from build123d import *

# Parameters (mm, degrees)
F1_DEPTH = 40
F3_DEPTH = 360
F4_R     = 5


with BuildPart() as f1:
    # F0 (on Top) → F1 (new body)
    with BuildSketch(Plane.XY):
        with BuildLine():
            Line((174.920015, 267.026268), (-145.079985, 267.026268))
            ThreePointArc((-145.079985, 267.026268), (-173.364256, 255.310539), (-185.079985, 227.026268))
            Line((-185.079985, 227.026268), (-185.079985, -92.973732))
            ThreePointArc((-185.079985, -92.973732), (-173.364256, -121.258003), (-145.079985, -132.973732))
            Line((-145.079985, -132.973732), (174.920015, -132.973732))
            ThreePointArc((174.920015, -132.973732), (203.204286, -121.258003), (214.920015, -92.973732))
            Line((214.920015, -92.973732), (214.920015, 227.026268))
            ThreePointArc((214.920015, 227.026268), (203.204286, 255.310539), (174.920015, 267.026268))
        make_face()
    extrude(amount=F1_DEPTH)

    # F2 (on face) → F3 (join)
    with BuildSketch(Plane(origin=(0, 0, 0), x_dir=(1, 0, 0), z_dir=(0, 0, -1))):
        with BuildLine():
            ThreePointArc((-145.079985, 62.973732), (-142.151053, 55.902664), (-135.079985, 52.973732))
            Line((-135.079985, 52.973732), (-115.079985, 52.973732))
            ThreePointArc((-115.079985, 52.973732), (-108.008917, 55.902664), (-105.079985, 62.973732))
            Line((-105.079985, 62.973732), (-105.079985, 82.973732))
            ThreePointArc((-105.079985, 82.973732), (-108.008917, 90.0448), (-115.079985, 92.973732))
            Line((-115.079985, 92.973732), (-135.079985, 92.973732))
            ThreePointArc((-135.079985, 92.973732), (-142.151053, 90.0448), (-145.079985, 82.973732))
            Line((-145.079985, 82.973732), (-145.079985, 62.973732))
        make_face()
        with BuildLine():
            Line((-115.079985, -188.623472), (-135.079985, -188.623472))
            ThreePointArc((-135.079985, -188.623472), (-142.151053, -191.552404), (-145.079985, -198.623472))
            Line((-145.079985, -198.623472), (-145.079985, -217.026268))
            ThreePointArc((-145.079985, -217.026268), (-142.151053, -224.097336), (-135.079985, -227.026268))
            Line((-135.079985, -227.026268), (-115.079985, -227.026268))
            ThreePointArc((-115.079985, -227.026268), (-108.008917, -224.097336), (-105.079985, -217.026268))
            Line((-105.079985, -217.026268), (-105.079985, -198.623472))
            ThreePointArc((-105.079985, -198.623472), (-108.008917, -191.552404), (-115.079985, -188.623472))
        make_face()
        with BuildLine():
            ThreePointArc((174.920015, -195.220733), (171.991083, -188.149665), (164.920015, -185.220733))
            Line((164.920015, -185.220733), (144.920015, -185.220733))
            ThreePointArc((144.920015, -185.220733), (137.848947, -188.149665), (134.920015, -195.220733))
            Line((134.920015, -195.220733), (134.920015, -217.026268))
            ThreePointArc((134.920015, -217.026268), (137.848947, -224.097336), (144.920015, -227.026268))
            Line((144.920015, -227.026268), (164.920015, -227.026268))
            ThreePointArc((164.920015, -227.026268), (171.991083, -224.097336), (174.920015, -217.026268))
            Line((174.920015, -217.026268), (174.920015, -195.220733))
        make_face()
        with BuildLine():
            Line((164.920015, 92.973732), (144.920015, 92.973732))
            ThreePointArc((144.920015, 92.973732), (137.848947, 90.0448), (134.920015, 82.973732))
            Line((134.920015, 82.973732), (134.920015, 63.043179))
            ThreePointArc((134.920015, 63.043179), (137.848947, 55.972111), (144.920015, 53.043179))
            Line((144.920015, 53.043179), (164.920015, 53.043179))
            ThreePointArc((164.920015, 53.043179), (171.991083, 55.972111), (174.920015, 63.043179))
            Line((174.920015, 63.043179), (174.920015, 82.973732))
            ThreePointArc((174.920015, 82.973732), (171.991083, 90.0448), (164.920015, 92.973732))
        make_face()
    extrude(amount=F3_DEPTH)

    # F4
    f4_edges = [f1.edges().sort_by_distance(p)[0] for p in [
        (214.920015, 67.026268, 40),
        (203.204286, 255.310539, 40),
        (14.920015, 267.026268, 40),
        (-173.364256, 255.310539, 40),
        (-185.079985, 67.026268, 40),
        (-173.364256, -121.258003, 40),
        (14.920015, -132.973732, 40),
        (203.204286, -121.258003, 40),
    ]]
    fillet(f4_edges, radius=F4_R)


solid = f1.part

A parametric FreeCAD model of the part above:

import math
import FreeCAD as App
import Part
import Sketcher
from FreeCAD import Vector


def edges_at(feature, points):
    """Names of the edges that pass closest to the given points."""
    edges = feature.Shape.Edges
    near = lambda p: min(range(len(edges)), key=lambda i: edges[i].distToShape(Part.Vertex(*p))[0])
    return sorted({f"Edge{near(p) + 1}" for p in points})

doc = App.newDocument("Part")
body = doc.addObject("PartDesign::Body", "Body")

# Sketch on XY plane
sketch1 = body.newObject("Sketcher::SketchObject", "Sketch")
sketch1.AttachmentSupport = (doc.getObject("XY_Plane"), [""])
sketch1.MapMode = "FlatFace"
sketch1.addGeometry([
    Part.LineSegment(Vector(174.920015, 267.026268, 0), Vector(-145.079985, 267.026268, 0)),  # 0
    Part.ArcOfCircle(Part.Circle(Vector(-145.079984, 227.026267, 0), Vector(0, 0, 1), 40.000001), math.radians(90.000001), math.radians(179.999999)),  # 1
    Part.LineSegment(Vector(-185.079985, 227.026268, 0), Vector(-185.079985, -92.973732, 0)),  # 2
    Part.ArcOfCircle(Part.Circle(Vector(-145.079984, -92.973731, 0), Vector(0, 0, 1), 40.000001), math.radians(-179.999999), math.radians(-90.000001)),  # 3
    Part.LineSegment(Vector(-145.079985, -132.973732, 0), Vector(174.920015, -132.973732, 0)),  # 4
    Part.ArcOfCircle(Part.Circle(Vector(174.920014, -92.973731, 0), Vector(0, 0, 1), 40.000001), math.radians(-89.999999), math.radians(-0.000001)),  # 5
    Part.LineSegment(Vector(214.920015, -92.973732, 0), Vector(214.920015, 227.026268, 0)),  # 6
    Part.ArcOfCircle(Part.Circle(Vector(174.920014, 227.026267, 0), Vector(0, 0, 1), 40.000001), math.radians(0.000001), math.radians(89.999999)),  # 7
], False)
sketch1.addConstraint([
    Sketcher.Constraint("Tangent", 0, 2, 1, 1),
    Sketcher.Constraint("Tangent", 1, 2, 2, 1),
    Sketcher.Constraint("Tangent", 2, 2, 3, 1),
    Sketcher.Constraint("Tangent", 3, 2, 4, 1),
    Sketcher.Constraint("Tangent", 4, 2, 5, 1),
    Sketcher.Constraint("Tangent", 5, 2, 6, 1),
    Sketcher.Constraint("Tangent", 6, 2, 7, 1),
    Sketcher.Constraint("Tangent", 7, 2, 0, 1),
    Sketcher.Constraint("Horizontal", 0),
    Sketcher.Constraint("Vertical", 2),
    Sketcher.Constraint("Horizontal", 4),
    Sketcher.Constraint("Vertical", 6),
    Sketcher.Constraint("Equal", 1, 3),
    Sketcher.Constraint("Equal", 3, 5),
    Sketcher.Constraint("Equal", 5, 7),
    Sketcher.Constraint("Equal", 4, 2),
    Sketcher.Constraint("Radius", 1, 40.000001),
    Sketcher.Constraint("DistanceX", 0, 2, 0, 1, 320.0),
    Sketcher.Constraint("DistanceY", 3, 3, -1, 1, 92.973731),
    Sketcher.Constraint("DistanceX", 1, 3, -1, 1, 145.079984),
])
pad1 = body.newObject("PartDesign::Pad", "Pad")
pad1.Profile = sketch1
pad1.Length = 40

# Sketch on XY plane
sketch2 = body.newObject("Sketcher::SketchObject", "Sketch001")
sketch2.AttachmentSupport = (doc.getObject("XY_Plane"), [""])
sketch2.MapMode = "FlatFace"
sketch2.addGeometry([
    Part.ArcOfCircle(Part.Circle(Vector(-135.079986, -62.973731, 0), Vector(0, 0, 1), 9.999999), math.radians(89.999996), math.radians(180.000004)),  # 0
    Part.LineSegment(Vector(-135.079985, -52.973732, 0), Vector(-115.079985, -52.973732, 0)),  # 1
    Part.ArcOfCircle(Part.Circle(Vector(-115.079984, -62.973731, 0), Vector(0, 0, 1), 9.999999), math.radians(-0.000004), math.radians(90.000004)),  # 2
    Part.LineSegment(Vector(-105.079985, -62.973732, 0), Vector(-105.079985, -82.973732, 0)),  # 3
    Part.ArcOfCircle(Part.Circle(Vector(-115.079984, -82.973733, 0), Vector(0, 0, 1), 9.999999), math.radians(-90.000004), math.radians(0.000004)),  # 4
    Part.LineSegment(Vector(-115.079985, -92.973732, 0), Vector(-135.079985, -92.973732, 0)),  # 5
    Part.ArcOfCircle(Part.Circle(Vector(-135.079986, -82.973733, 0), Vector(0, 0, 1), 9.999999), math.radians(179.999996), math.radians(270.000004)),  # 6
    Part.LineSegment(Vector(-145.079985, -82.973732, 0), Vector(-145.079985, -62.973732, 0)),  # 7
    Part.LineSegment(Vector(-115.079985, 188.623472, 0), Vector(-135.079985, 188.623472, 0)),  # 8
    Part.ArcOfCircle(Part.Circle(Vector(-135.079986, 198.623471, 0), Vector(0, 0, 1), 9.999999), math.radians(179.999996), math.radians(270.000004)),  # 9
    Part.LineSegment(Vector(-145.079985, 198.623472, 0), Vector(-145.079985, 217.026268, 0)),  # 10
    Part.ArcOfCircle(Part.Circle(Vector(-135.079986, 217.026269, 0), Vector(0, 0, 1), 9.999999), math.radians(89.999996), math.radians(180.000004)),  # 11
    Part.LineSegment(Vector(-135.079985, 227.026268, 0), Vector(-115.079985, 227.026268, 0)),  # 12
    Part.ArcOfCircle(Part.Circle(Vector(-115.079984, 217.026269, 0), Vector(0, 0, 1), 9.999999), math.radians(-0.000004), math.radians(90.000004)),  # 13
    Part.LineSegment(Vector(-105.079985, 217.026268, 0), Vector(-105.079985, 198.623472, 0)),  # 14
    Part.ArcOfCircle(Part.Circle(Vector(-115.079984, 198.623471, 0), Vector(0, 0, 1), 9.999999), math.radians(-90.000004), math.radians(0.000004)),  # 15
    Part.ArcOfCircle(Part.Circle(Vector(164.920016, 195.220732, 0), Vector(0, 0, 1), 9.999999), math.radians(-90.000004), math.radians(0.000004)),  # 16
    Part.LineSegment(Vector(164.920015, 185.220733, 0), Vector(144.920015, 185.220733, 0)),  # 17
    Part.ArcOfCircle(Part.Circle(Vector(144.920014, 195.220732, 0), Vector(0, 0, 1), 9.999999), math.radians(179.999996), math.radians(270.000004)),  # 18
    Part.LineSegment(Vector(134.920015, 195.220733, 0), Vector(134.920015, 217.026268, 0)),  # 19
    Part.ArcOfCircle(Part.Circle(Vector(144.920014, 217.026269, 0), Vector(0, 0, 1), 9.999999), math.radians(89.999996), math.radians(180.000004)),  # 20
    Part.LineSegment(Vector(144.920015, 227.026268, 0), Vector(164.920015, 227.026268, 0)),  # 21
    Part.ArcOfCircle(Part.Circle(Vector(164.920016, 217.026269, 0), Vector(0, 0, 1), 9.999999), math.radians(-0.000004), math.radians(90.000004)),  # 22
    Part.LineSegment(Vector(174.920015, 217.026268, 0), Vector(174.920015, 195.220733, 0)),  # 23
    Part.LineSegment(Vector(164.920015, -92.973732, 0), Vector(144.920015, -92.973732, 0)),  # 24
    Part.ArcOfCircle(Part.Circle(Vector(144.920014, -82.973733, 0), Vector(0, 0, 1), 9.999999), math.radians(179.999996), math.radians(270.000004)),  # 25
    Part.LineSegment(Vector(134.920015, -82.973732, 0), Vector(134.920015, -63.043179, 0)),  # 26
    Part.ArcOfCircle(Part.Circle(Vector(144.920014, -63.043178, 0), Vector(0, 0, 1), 9.999999), math.radians(89.999996), math.radians(180.000004)),  # 27
    Part.LineSegment(Vector(144.920015, -53.043179, 0), Vector(164.920015, -53.043179, 0)),  # 28
    Part.ArcOfCircle(Part.Circle(Vector(164.920016, -63.043178, 0), Vector(0, 0, 1), 9.999999), math.radians(-0.000004), math.radians(90.000004)),  # 29
    Part.LineSegment(Vector(174.920015, -63.043179, 0), Vector(174.920015, -82.973732, 0)),  # 30
    Part.ArcOfCircle(Part.Circle(Vector(164.920016, -82.973733, 0), Vector(0, 0, 1), 9.999999), math.radians(-90.000004), math.radians(0.000004)),  # 31
], False)
sketch2.addConstraint([
    Sketcher.Constraint("Tangent", 0, 1, 1, 1),
    Sketcher.Constraint("Tangent", 1, 2, 2, 2),
    Sketcher.Constraint("Tangent", 2, 1, 3, 1),
    Sketcher.Constraint("Tangent", 3, 2, 4, 2),
    Sketcher.Constraint("Tangent", 4, 1, 5, 1),
    Sketcher.Constraint("Tangent", 5, 2, 6, 2),
    Sketcher.Constraint("Tangent", 6, 1, 7, 1),
    Sketcher.Constraint("Tangent", 7, 2, 0, 2),
    Sketcher.Constraint("Tangent", 8, 2, 9, 2),
    Sketcher.Constraint("Tangent", 9, 1, 10, 1),
    Sketcher.Constraint("Tangent", 10, 2, 11, 2),
    Sketcher.Constraint("Tangent", 11, 1, 12, 1),
    Sketcher.Constraint("Tangent", 12, 2, 13, 2),
    Sketcher.Constraint("Tangent", 13, 1, 14, 1),
    Sketcher.Constraint("Tangent", 14, 2, 15, 2),
    Sketcher.Constraint("Tangent", 15, 1, 8, 1),
    Sketcher.Constraint("Tangent", 16, 1, 17, 1),
    Sketcher.Constraint("Tangent", 17, 2, 18, 2),
    Sketcher.Constraint("Tangent", 18, 1, 19, 1),
    Sketcher.Constraint("Tangent", 19, 2, 20, 2),
    Sketcher.Constraint("Tangent", 20, 1, 21, 1),
    Sketcher.Constraint("Tangent", 21, 2, 22, 2),
    Sketcher.Constraint("Tangent", 22, 1, 23, 1),
    Sketcher.Constraint("Tangent", 23, 2, 16, 2),
    Sketcher.Constraint("Tangent", 24, 2, 25, 2),
    Sketcher.Constraint("Tangent", 25, 1, 26, 1),
    Sketcher.Constraint("Tangent", 26, 2, 27, 2),
    Sketcher.Constraint("Tangent", 27, 1, 28, 1),
    Sketcher.Constraint("Tangent", 28, 2, 29, 2),
    Sketcher.Constraint("Tangent", 29, 1, 30, 1),
    Sketcher.Constraint("Tangent", 30, 2, 31, 2),
    Sketcher.Constraint("Tangent", 31, 1, 24, 1),
    Sketcher.Constraint("Horizontal", 1),
    Sketcher.Constraint("Vertical", 3),
    Sketcher.Constraint("Horizontal", 5),
    Sketcher.Constraint("Vertical", 7),
    Sketcher.Constraint("Horizontal", 8),
    Sketcher.Constraint("Vertical", 10),
    Sketcher.Constraint("Horizontal", 12),
    Sketcher.Constraint("Vertical", 14),
    Sketcher.Constraint("Horizontal", 17),
    Sketcher.Constraint("Vertical", 19),
    Sketcher.Constraint("Horizontal", 21),
    Sketcher.Constraint("Vertical", 23),
    Sketcher.Constraint("Horizontal", 24),
    Sketcher.Constraint("Vertical", 26),
    Sketcher.Constraint("Horizontal", 28),
    Sketcher.Constraint("Vertical", 30),
    Sketcher.Constraint("Equal", 0, 2),
    Sketcher.Constraint("Equal", 2, 4),
    Sketcher.Constraint("Equal", 4, 6),
    Sketcher.Constraint("Equal", 6, 9),
    Sketcher.Constraint("Equal", 9, 11),
    Sketcher.Constraint("Equal", 11, 13),
    Sketcher.Constraint("Equal", 13, 15),
    Sketcher.Constraint("Equal", 15, 16),
    Sketcher.Constraint("Equal", 16, 18),
    Sketcher.Constraint("Equal", 18, 20),
    Sketcher.Constraint("Equal", 20, 22),
    Sketcher.Constraint("Equal", 22, 25),
    Sketcher.Constraint("Equal", 25, 27),
    Sketcher.Constraint("Equal", 27, 29),
    Sketcher.Constraint("Equal", 29, 31),
    Sketcher.Constraint("Horizontal", 13, 3, 20, 3),
    Sketcher.Constraint("Horizontal", 6, 3, 25, 3),
    Sketcher.Constraint("Vertical", 6, 3, 9, 3),
    Sketcher.Constraint("Vertical", 4, 3, 13, 3),
    Sketcher.Constraint("Vertical", 20, 3, 25, 3),
    Sketcher.Constraint("Vertical", 22, 3, 29, 3),
    Sketcher.Constraint("Equal", 12, 17),
    Sketcher.Constraint("Equal", 28, 3),
    Sketcher.Constraint("Radius", 0, 9.999999),
    Sketcher.Constraint("DistanceX", 1, 1, 1, 2, 20.0),
    Sketcher.Constraint("DistanceY", 0, 3, 11, 3, 280.0),
    Sketcher.Constraint("DistanceX", 15, 3, 16, 3, 280.0),
    Sketcher.Constraint("DistanceY", 10, 1, 10, 2, 18.402796),
    Sketcher.Constraint("DistanceY", 19, 1, 19, 2, 21.805535),
    Sketcher.Constraint("DistanceY", 26, 1, 26, 2, 19.930553),
    Sketcher.Constraint("DistanceY", 0, 3, -1, 1, 62.973731),
    Sketcher.Constraint("DistanceX", 0, 3, -1, 1, 135.079986),
])
pad2 = body.newObject("PartDesign::Pad", "Pad001")
pad2.Profile = sketch2
pad2.Length = 360
pad2.Reversed = True
doc.recompute()

fillet = body.newObject("PartDesign::Fillet", "Fillet")
fillet.Base = (pad2, edges_at(pad2, [
    (214.92, 67.026, 40),
    (203.204, 255.311, 40),
    (14.92, 267.026, 40),
    (-173.364, 255.311, 40),
    (-185.08, 67.026, 40),
    (-173.364, -121.258, 40),
    (14.92, -132.974, 40),
    (203.204, -121.258, 40),
]))
fillet.Radius = 5

doc.recompute()
